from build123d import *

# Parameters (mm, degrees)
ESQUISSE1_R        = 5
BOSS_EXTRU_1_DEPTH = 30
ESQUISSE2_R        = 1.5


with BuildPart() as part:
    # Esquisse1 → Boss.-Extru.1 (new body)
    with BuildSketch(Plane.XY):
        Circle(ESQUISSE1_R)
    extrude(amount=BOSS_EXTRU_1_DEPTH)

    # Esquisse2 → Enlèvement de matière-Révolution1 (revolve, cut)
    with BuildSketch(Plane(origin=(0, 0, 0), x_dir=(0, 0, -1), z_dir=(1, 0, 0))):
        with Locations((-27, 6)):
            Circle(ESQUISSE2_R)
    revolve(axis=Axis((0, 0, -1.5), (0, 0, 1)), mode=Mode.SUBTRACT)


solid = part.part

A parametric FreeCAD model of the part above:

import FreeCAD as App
import Part
import Sketcher
from FreeCAD import Vector
Q = App.Units.Quantity

doc = App.newDocument("Part")
params = doc.addObject("Spreadsheet::Sheet", "Params")
for row, (alias, value) in enumerate([
    ("sketch1_diameter", "10 mm"),
    ("pad1_length", "30 mm"),
    ("sketch2_diameter", "3 mm"),
    ("groove_angle", "360 deg"),
], start=1):
    params.set(f"A{row}", alias)
    params.set(f"B{row}", "=" + value)
    params.setAlias(f"B{row}", alias)

body = doc.addObject("PartDesign::Body", "Body")

# Sketch on XY plane
sketch1 = doc.addObject("Sketcher::SketchObject", "Sketch")
body.addObject(sketch1)
sketch1.AttachmentSupport = (doc.XY_Plane, [""])
sketch1.MapMode = "FlatFace"
sketch1.addGeometry(Part.Circle(Vector(0, 0, 0), Vector(0, 0, 1), 5), False)
sketch1.addConstraint(Sketcher.Constraint("Coincident", 0, 3, -1, 1))
sketch1.addConstraint(Sketcher.Constraint("Diameter", 0, Q("10 mm")))
sketch1.setExpression("Constraints[1]", "Params.sketch1_diameter")
pad1 = doc.addObject("PartDesign::Pad", "Pad")
body.addObject(pad1)
pad1.Profile = sketch1
pad1.setExpression("Length", "Params.pad1_length")

# Sketch on YZ plane
sketch2 = doc.addObject("Sketcher::SketchObject", "Sketch001")
body.addObject(sketch2)
sketch2.AttachmentSupport = (doc.YZ_Plane, [""])
sketch2.MapMode = "FlatFace"
sketch2.addGeometry(Part.Circle(Vector(6, 27, 0), Vector(0, 0, 1), 1.5), False)
sketch2.addConstraint(Sketcher.Constraint("Diameter", 0, Q("3 mm")))
sketch2.addConstraint(Sketcher.Constraint("DistanceX", -1, 1, 0, 3, Q("6 mm")))
sketch2.addConstraint(Sketcher.Constraint("DistanceY", -1, 1, 0, 3, Q("27 mm")))
sketch2.setExpression("Constraints[0]", "Params.sketch2_diameter")
groove = doc.addObject("PartDesign::Groove", "Groove")
body.addObject(groove)
groove.Profile = sketch2
groove.ReferenceAxis = (sketch2, ["V_Axis"])
groove.setExpression("Angle", "Params.groove_angle")

doc.recompute()
